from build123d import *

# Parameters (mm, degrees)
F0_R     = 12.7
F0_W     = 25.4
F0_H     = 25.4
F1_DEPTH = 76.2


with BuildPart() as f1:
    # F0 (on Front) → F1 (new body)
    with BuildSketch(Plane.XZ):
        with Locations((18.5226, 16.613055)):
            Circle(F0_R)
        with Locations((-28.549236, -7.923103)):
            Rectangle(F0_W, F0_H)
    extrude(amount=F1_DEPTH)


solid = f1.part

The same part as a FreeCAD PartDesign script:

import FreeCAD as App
import Part
import Sketcher
Q = App.Units.Quantity

doc = App.newDocument("Part")
body = doc.addObject("PartDesign::Body", "Body")
body.AllowCompound = True

# Sketch on XZ plane
sketch1 = doc.addObject("Sketcher::SketchObject", "Sketch")
body.addObject(sketch1)
sketch1.AttachmentSupport = (doc.XZ_Plane, [""])
sketch1.MapMode = "FlatFace"
sketch1.addGeometry(Part.Circle(App.Vector(18.5226, 16.613055, 0), App.Vector(0, 0, 1), 12.7), False)
sketch1.addGeometry(Part.LineSegment(App.Vector(-41.249236, 4.776897, 0), App.Vector(-41.249236, -20.623103, 0)), False)
sketch1.addGeometry(Part.LineSegment(App.Vector(-41.249236, -20.623103, 0), App.Vector(-15.849236, -20.623103, 0)), False)
sketch1.addGeometry(Part.LineSegment(App.Vector(-15.849236, -20.623103, 0), App.Vector(-15.849236, 4.776897, 0)), False)
sketch1.addGeometry(Part.LineSegment(App.Vector(-15.849236, 4.776897, 0), App.Vector(-41.249236, 4.776897, 0)), False)
sketch1.addConstraint(Sketcher.Constraint("Coincident", 1, 2, 2, 1))
sketch1.addConstraint(Sketcher.Constraint("Coincident", 2, 2, 3, 1))
sketch1.addConstraint(Sketcher.Constraint("Coincident", 3, 2, 4, 1))
sketch1.addConstraint(Sketcher.Constraint("Coincident", 4, 2, 1, 1))
sketch1.addConstraint(Sketcher.Constraint("Vertical", 1))
sketch1.addConstraint(Sketcher.Constraint("Horizontal", 2))
sketch1.addConstraint(Sketcher.Constraint("Vertical", 3))
sketch1.addConstraint(Sketcher.Constraint("Horizontal", 4))
sketch1.addConstraint(Sketcher.Constraint("Equal", 4, 1))
sketch1.addConstraint(Sketcher.Constraint("Diameter", 0, Q("1 in")))
sketch1.addConstraint(Sketcher.Constraint("DistanceX", 2, 1, 2, 2, Q("1 in")))
sketch1.addConstraint(Sketcher.Constraint("DistanceX", -1, 1, 0, 3, Q("18.5226 mm")))
sketch1.addConstraint(Sketcher.Constraint("DistanceY", 1, 2, 0, 3, Q("37.236158 mm")))
sketch1.addConstraint(Sketcher.Constraint("DistanceY", -1, 1, 0, 3, Q("16.613055 mm")))
sketch1.addConstraint(Sketcher.Constraint("DistanceX", 1, 2, -1, 1, Q("41.249236 mm")))
pad1 = doc.addObject("PartDesign::Pad", "Pad")
body.addObject(pad1)
pad1.Profile = sketch1
pad1.Length = Q("3 in")

doc.recompute()
